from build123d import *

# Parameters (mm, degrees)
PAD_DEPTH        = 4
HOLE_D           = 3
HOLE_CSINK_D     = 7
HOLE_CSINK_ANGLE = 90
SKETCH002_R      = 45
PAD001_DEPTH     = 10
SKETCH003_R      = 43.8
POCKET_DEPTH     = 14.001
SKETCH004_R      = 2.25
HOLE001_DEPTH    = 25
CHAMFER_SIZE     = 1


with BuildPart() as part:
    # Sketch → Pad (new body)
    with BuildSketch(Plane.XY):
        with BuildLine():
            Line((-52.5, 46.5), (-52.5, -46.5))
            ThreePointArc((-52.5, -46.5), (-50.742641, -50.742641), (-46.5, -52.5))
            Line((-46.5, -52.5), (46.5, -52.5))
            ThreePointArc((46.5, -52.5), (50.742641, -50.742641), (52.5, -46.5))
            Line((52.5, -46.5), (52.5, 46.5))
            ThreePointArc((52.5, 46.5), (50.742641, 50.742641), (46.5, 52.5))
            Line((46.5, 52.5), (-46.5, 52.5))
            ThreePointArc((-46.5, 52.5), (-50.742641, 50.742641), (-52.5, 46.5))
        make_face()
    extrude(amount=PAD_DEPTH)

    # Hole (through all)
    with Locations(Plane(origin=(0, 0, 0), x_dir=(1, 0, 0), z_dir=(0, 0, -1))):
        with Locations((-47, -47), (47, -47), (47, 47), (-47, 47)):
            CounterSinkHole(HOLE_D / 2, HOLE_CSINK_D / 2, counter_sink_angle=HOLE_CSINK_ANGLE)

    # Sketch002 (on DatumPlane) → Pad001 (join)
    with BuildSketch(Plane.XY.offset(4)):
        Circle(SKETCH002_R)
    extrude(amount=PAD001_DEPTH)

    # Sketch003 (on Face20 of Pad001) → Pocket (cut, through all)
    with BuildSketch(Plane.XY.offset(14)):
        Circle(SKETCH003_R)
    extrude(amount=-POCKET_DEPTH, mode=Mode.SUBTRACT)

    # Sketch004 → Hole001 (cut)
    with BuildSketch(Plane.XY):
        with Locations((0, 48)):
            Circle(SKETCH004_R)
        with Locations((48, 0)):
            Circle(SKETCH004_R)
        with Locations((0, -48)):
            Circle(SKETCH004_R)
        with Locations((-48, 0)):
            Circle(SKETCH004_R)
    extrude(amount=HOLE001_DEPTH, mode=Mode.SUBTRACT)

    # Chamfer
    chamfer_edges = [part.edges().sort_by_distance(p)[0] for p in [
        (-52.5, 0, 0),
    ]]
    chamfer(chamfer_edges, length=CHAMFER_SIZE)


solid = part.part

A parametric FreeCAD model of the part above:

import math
import FreeCAD as App
import Part
import Sketcher


def edges_at(feature, points):
    """Names of the edges that pass closest to the given points."""
    edges = feature.Shape.Edges
    near = lambda p: min(range(len(edges)), key=lambda i: edges[i].distToShape(Part.Vertex(*p))[0])
    return sorted({f"Edge{near(p) + 1}" for p in points})

doc = App.newDocument("Part")
params = doc.addObject("Spreadsheet::Sheet", "Params")
for row, (alias, value) in enumerate([
    ("sketch1_radius", "5.999999 mm"),
    ("sketch1_width", "93 mm"),
    ("pad1_length", "4 mm"),
    ("sketch2_diameter", "3 mm"),
    ("hole_diameter", "3 mm"),
    ("hole_csink_diameter", "7 mm"),
    ("sketch3_diameter", "90 mm"),
    ("pad2_length", "10 mm"),
    ("sketch4_diameter", "87.6 mm"),
    ("sketch5_diameter", "4.5 mm"),
    ("pocket2_length", "25 mm"),
    ("chamfer_size", "1 mm"),
], start=1):
    params.set(f"A{row}", alias)
    params.set(f"B{row}", "=" + value)
    params.setAlias(f"B{row}", alias)

body = doc.addObject("PartDesign::Body", "Body")

# Sketch on XY plane
sketch1 = body.newObject("Sketcher::SketchObject", "Sketch")
sketch1.AttachmentSupport = (doc.getObject("XY_Plane"), [""])
sketch1.MapMode = "FlatFace"
sketch1.addGeometry(Part.LineSegment(App.Vector(-52, 46, 0), App.Vector(-52, -46, 0)), False)
sketch1.addGeometry(Part.ArcOfCircle(Part.Circle(App.Vector(-47, -47, 0), App.Vector(0, 0, 1), 6), math.radians(180), math.radians(270)), False)
sketch1.addGeometry(Part.LineSegment(App.Vector(-46, -52, 0), App.Vector(46, -52, 0)), False)
sketch1.addGeometry(Part.ArcOfCircle(Part.Circle(App.Vector(47, -47, 0), App.Vector(0, 0, 1), 6), math.radians(-90), math.radians(0)), False)
sketch1.addGeometry(Part.LineSegment(App.Vector(52, -46, 0), App.Vector(52, 46, 0)), False)
sketch1.addGeometry(Part.ArcOfCircle(Part.Circle(App.Vector(47, 47, 0), App.Vector(0, 0, 1), 6), math.radians(0), math.radians(90)), False)
sketch1.addGeometry(Part.LineSegment(App.Vector(46, 52, 0), App.Vector(-46, 52, 0)), False)
sketch1.addGeometry(Part.ArcOfCircle(Part.Circle(App.Vector(-47, 47, 0), App.Vector(0, 0, 1), 6), math.radians(90), math.radians(180)), False)
sketch1.addConstraint(Sketcher.Constraint("Tangent", 0, 2, 1, 1))
sketch1.addConstraint(Sketcher.Constraint("Tangent", 1, 2, 2, 1))
sketch1.addConstraint(Sketcher.Constraint("Tangent", 2, 2, 3, 1))
sketch1.addConstraint(Sketcher.Constraint("Tangent", 3, 2, 4, 1))
sketch1.addConstraint(Sketcher.Constraint("Tangent", 4, 2, 5, 1))
sketch1.addConstraint(Sketcher.Constraint("Tangent", 5, 2, 6, 1))
sketch1.addConstraint(Sketcher.Constraint("Tangent", 6, 2, 7, 1))
sketch1.addConstraint(Sketcher.Constraint("Tangent", 7, 2, 0, 1))
sketch1.addConstraint(Sketcher.Constraint("Vertical", 0))
sketch1.addConstraint(Sketcher.Constraint("Horizontal", 2))
sketch1.addConstraint(Sketcher.Constraint("Vertical", 4))
sketch1.addConstraint(Sketcher.Constraint("Horizontal", 6))
sketch1.addConstraint(Sketcher.Constraint("Equal", 1, 3))
sketch1.addConstraint(Sketcher.Constraint("Equal", 3, 5))
sketch1.addConstraint(Sketcher.Constraint("Equal", 5, 7))
sketch1.addConstraint(Sketcher.Constraint("Symmetric", 1, 3, 5, 3, -1, 1))
sketch1.addConstraint(Sketcher.Constraint("Equal", 6, 0))
sketch1.addConstraint(Sketcher.Constraint("Radius", 1, 5.999999))
sketch1.addConstraint(Sketcher.Constraint("DistanceX", 2, 1, 2, 2, 93.0))
sketch1.setExpression("Constraints[17]", "Params.sketch1_radius")
sketch1.setExpression("Constraints[18]", "Params.sketch1_width")
pad1 = body.newObject("PartDesign::Pad", "Pad")
pad1.Profile = sketch1
pad1.setExpression("Length", "Params.pad1_length")

# Sketch on XY plane
sketch2 = body.newObject("Sketcher::SketchObject", "Sketch001")
sketch2.AttachmentSupport = (doc.getObject("XY_Plane"), [""])
sketch2.MapMode = "FlatFace"
sketch2.addGeometry(Part.Circle(App.Vector(-47, 47, 0), App.Vector(0, 0, 1), 1.5), False)
sketch2.addGeometry(Part.Circle(App.Vector(47, 47, 0), App.Vector(0, 0, 1), 1.5), False)
sketch2.addGeometry(Part.Circle(App.Vector(47, -47, 0), App.Vector(0, 0, 1), 1.5), False)
sketch2.addGeometry(Part.Circle(App.Vector(-47, -47, 0), App.Vector(0, 0, 1), 1.5), False)
sketch2.addConstraint(Sketcher.Constraint("Equal", 0, 1))
sketch2.addConstraint(Sketcher.Constraint("Equal", 1, 2))
sketch2.addConstraint(Sketcher.Constraint("Equal", 2, 3))
sketch2.addConstraint(Sketcher.Constraint("Symmetric", 0, 3, 2, 3, -1, 1))
sketch2.addConstraint(Sketcher.Constraint("Symmetric", 1, 3, 3, 3, -1, 1))
sketch2.addConstraint(Sketcher.Constraint("Symmetric", 0, 3, 1, 3, -2))
sketch2.addConstraint(Sketcher.Constraint("Diameter", 0, 3.0))
sketch2.addConstraint(Sketcher.Constraint("DistanceX", 0, 3, -1, 1, 47.0))
sketch2.addConstraint(Sketcher.Constraint("DistanceY", -1, 1, 0, 3, 47.0))
sketch2.setExpression("Constraints[6]", "Params.sketch2_diameter")
doc.recompute()
hole = body.newObject("PartDesign::Hole", "Hole")
hole.Profile = sketch2
hole.ThreadType = "None"
hole.setExpression("Diameter", "Params.hole_diameter")
hole.DepthType = "ThroughAll"
hole.HoleCutType = "Countersink"
hole.setExpression("HoleCutDiameter", "Params.hole_csink_diameter")
hole.HoleCutCountersinkAngle = 90
hole.Reversed = True

# Sketch on XY plane
sketch3 = body.newObject("Sketcher::SketchObject", "Sketch002")
sketch3.AttachmentSupport = (doc.getObject("XY_Plane"), [""])
sketch3.MapMode = "FlatFace"
sketch3.AttachmentOffset = App.Placement(App.Vector(0, 0, 4), App.Rotation())
sketch3.addGeometry(Part.Circle(App.Vector(0, 0, 0), App.Vector(0, 0, 1), 45), False)
sketch3.addConstraint(Sketcher.Constraint("Coincident", 0, 3, -1, 1))
sketch3.addConstraint(Sketcher.Constraint("Diameter", 0, 90.0))
sketch3.setExpression("Constraints[1]", "Params.sketch3_diameter")
pad2 = body.newObject("PartDesign::Pad", "Pad001")
pad2.Profile = sketch3
pad2.setExpression("Length", "Params.pad2_length")

# Sketch on XY plane
sketch4 = body.newObject("Sketcher::SketchObject", "Sketch003")
sketch4.AttachmentSupport = (doc.getObject("XY_Plane"), [""])
sketch4.MapMode = "FlatFace"
sketch4.AttachmentOffset = App.Placement(App.Vector(0, 0, 14), App.Rotation())
sketch4.addGeometry(Part.Circle(App.Vector(0, 0, 0), App.Vector(0, 0, 1), 44), False)
sketch4.addConstraint(Sketcher.Constraint("Coincident", 0, 3, -1, 1))
sketch4.addConstraint(Sketcher.Constraint("Diameter", 0, 87.6))
sketch4.setExpression("Constraints[1]", "Params.sketch4_diameter")
pocket1 = body.newObject("PartDesign::Pocket", "Pocket")
pocket1.Profile = sketch4
pocket1.Type = "ThroughAll"

# Sketch on XY plane
sketch5 = body.newObject("Sketcher::SketchObject", "Sketch004")
sketch5.AttachmentSupport = (doc.getObject("XY_Plane"), [""])
sketch5.MapMode = "FlatFace"
sketch5.addGeometry(Part.Circle(App.Vector(0, 48, 0), App.Vector(0, 0, 1), 2.2), False)
sketch5.addGeometry(Part.Circle(App.Vector(48, 0, 0), App.Vector(0, 0, 1), 2.2), False)
sketch5.addGeometry(Part.Circle(App.Vector(0, -48, 0), App.Vector(0, 0, 1), 2.2), False)
sketch5.addGeometry(Part.Circle(App.Vector(-48, 0, 0), App.Vector(0, 0, 1), 2.2), False)
sketch5.addConstraint(Sketcher.Constraint("Equal", 0, 1))
sketch5.addConstraint(Sketcher.Constraint("Equal", 1, 2))
sketch5.addConstraint(Sketcher.Constraint("Equal", 2, 3))
sketch5.addConstraint(Sketcher.Constraint("Symmetric", 0, 3, 2, 3, -1, 1))
sketch5.addConstraint(Sketcher.Constraint("Symmetric", 1, 3, 3, 3, -1, 1))
sketch5.addConstraint(Sketcher.Constraint("PointOnObject", 0, 3, -2))
sketch5.addConstraint(Sketcher.Constraint("PointOnObject", 1, 3, -1))
sketch5.addConstraint(Sketcher.Constraint("Diameter", 0, 4.5))
sketch5.addConstraint(Sketcher.Constraint("DistanceY", -1, 1, 0, 3, 48.0))
sketch5.addConstraint(Sketcher.Constraint("DistanceX", -1, 1, 1, 3, 48.0))
sketch5.setExpression("Constraints[7]", "Params.sketch5_diameter")
pocket2 = body.newObject("PartDesign::Pocket", "Pocket001")
pocket2.Profile = sketch5
pocket2.setExpression("Length", "Params.pocket2_length")
pocket2.Reversed = True
doc.recompute()

chamfer = body.newObject("PartDesign::Chamfer", "Chamfer")
chamfer.Base = (pocket2, edges_at(pocket2, [(-52.5, 0, 0)]))
chamfer.setExpression("Size", "Params.chamfer_size")

doc.recompute()
